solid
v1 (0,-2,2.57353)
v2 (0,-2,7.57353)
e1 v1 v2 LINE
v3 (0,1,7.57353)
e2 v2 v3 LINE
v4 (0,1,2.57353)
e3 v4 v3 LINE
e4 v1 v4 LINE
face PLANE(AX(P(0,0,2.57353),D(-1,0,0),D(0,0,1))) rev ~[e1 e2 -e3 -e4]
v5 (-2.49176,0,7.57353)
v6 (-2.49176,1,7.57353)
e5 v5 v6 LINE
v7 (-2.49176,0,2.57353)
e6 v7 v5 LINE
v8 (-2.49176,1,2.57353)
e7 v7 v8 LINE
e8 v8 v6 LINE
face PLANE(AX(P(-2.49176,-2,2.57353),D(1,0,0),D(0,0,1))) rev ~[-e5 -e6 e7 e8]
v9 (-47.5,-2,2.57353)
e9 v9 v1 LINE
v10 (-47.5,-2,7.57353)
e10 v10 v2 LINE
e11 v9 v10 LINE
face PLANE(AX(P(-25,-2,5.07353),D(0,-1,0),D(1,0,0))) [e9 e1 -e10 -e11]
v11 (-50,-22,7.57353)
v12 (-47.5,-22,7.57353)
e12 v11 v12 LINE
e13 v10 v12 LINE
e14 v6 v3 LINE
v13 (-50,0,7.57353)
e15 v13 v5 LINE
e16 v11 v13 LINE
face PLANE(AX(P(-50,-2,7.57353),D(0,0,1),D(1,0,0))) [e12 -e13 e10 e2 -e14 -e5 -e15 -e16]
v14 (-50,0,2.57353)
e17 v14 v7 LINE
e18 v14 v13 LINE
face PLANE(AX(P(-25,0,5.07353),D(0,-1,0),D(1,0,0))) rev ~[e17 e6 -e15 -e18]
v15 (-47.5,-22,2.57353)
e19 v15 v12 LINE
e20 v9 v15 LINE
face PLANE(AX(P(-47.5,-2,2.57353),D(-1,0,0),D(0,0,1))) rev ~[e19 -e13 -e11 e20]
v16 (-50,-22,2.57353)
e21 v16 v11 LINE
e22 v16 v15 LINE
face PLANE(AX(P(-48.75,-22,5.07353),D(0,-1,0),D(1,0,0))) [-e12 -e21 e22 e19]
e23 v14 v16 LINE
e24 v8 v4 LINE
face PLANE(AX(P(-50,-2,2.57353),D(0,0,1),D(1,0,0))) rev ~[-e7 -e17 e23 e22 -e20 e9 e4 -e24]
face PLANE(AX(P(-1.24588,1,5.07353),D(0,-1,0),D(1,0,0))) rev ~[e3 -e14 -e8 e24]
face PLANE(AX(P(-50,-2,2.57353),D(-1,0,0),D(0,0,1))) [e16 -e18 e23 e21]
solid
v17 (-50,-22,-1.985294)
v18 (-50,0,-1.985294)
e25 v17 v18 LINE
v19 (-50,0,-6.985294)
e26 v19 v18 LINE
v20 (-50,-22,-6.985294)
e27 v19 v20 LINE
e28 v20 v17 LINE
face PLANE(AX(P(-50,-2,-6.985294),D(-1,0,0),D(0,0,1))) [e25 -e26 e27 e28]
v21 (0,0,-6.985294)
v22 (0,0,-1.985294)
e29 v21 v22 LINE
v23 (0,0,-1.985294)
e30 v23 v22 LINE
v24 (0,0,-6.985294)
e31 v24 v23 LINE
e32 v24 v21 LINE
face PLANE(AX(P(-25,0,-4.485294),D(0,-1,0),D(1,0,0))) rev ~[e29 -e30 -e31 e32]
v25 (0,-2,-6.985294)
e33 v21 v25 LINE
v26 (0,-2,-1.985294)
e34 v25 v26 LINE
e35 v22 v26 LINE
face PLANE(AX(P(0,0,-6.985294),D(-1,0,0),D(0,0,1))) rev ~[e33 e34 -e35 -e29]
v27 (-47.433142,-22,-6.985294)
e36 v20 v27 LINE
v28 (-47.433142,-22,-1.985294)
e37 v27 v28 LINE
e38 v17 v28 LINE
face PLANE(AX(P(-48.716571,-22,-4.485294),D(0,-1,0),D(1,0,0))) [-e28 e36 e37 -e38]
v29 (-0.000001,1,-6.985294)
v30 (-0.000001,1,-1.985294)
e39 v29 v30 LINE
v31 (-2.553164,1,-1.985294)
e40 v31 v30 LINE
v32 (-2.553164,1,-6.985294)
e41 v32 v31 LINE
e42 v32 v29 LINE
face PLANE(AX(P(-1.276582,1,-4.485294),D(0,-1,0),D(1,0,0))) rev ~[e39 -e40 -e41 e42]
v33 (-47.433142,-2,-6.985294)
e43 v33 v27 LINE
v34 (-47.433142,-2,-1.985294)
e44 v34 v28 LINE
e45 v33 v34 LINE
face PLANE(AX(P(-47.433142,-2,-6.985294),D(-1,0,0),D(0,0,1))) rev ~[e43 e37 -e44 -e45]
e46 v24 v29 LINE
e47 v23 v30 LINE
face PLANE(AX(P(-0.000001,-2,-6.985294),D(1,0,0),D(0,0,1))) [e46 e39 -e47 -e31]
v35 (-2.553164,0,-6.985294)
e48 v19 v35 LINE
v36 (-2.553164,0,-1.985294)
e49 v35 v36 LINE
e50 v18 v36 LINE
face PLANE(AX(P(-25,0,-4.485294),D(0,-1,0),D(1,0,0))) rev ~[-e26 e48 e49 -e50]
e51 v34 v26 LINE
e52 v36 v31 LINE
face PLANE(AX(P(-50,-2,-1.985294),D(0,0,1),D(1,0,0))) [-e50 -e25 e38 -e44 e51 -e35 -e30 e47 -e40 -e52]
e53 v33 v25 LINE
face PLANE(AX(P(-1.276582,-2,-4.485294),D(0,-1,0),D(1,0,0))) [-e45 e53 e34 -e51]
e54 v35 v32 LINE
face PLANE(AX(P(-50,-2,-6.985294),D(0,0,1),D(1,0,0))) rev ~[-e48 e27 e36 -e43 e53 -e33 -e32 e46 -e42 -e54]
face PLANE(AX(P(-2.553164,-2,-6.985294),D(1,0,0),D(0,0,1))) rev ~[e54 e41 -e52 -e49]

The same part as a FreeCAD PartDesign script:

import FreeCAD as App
import Part
import Sketcher

V = App.Vector
Q = App.Units.Quantity

doc = App.newDocument("Part")
body = doc.addObject("PartDesign::Body", "Body")
body.AllowCompound = True

sketch1 = body.newObject("Sketcher::SketchObject", "Sketch")
sketch1.AttachmentSupport = (doc.getObject("XZ_Plane"), [""])
sketch1.MapMode = "FlatFace"
sketch1.addGeometry(Part.LineSegment(V(-50, 7.57353, 0), V(-50, 2.57353, 0)), False)
sketch1.addGeometry(Part.LineSegment(V(-50, 2.57353, 0), V(0, 2.57353, 0)), False)
sketch1.addGeometry(Part.LineSegment(V(0, 2.57353, 0), V(0, 7.57353, 0)), False)
sketch1.addGeometry(Part.LineSegment(V(0, 7.57353, 0), V(-50, 7.57353, 0)), False)
sketch1.addGeometry(Part.LineSegment(V(-50, -1.985294, 0), V(-50, -6.985294, 0)), False)
sketch1.addGeometry(Part.LineSegment(V(-50, -6.985294, 0), V(0, -6.985294, 0)), False)
sketch1.addGeometry(Part.LineSegment(V(0, -6.985294, 0), V(0, -1.985294, 0)), False)
sketch1.addGeometry(Part.LineSegment(V(0, -1.985294, 0), V(-50, -1.985294, 0)), False)
sketch1.addConstraint(Sketcher.Constraint("Coincident", 0, 2, 1, 1))
sketch1.addConstraint(Sketcher.Constraint("Coincident", 1, 2, 2, 1))
sketch1.addConstraint(Sketcher.Constraint("Coincident", 2, 2, 3, 1))
sketch1.addConstraint(Sketcher.Constraint("Coincident", 3, 2, 0, 1))
sketch1.addConstraint(Sketcher.Constraint("Coincident", 4, 2, 5, 1))
sketch1.addConstraint(Sketcher.Constraint("Coincident", 5, 2, 6, 1))
sketch1.addConstraint(Sketcher.Constraint("Coincident", 6, 2, 7, 1))
sketch1.addConstraint(Sketcher.Constraint("Coincident", 7, 2, 4, 1))
sketch1.addConstraint(Sketcher.Constraint("Vertical", 0))
sketch1.addConstraint(Sketcher.Constraint("Horizontal", 1))
sketch1.addConstraint(Sketcher.Constraint("Vertical", 2))
sketch1.addConstraint(Sketcher.Constraint("Horizontal", 3))
sketch1.addConstraint(Sketcher.Constraint("Vertical", 4))
sketch1.addConstraint(Sketcher.Constraint("Horizontal", 5))
sketch1.addConstraint(Sketcher.Constraint("Vertical", 6))
sketch1.addConstraint(Sketcher.Constraint("Horizontal", 7))
sketch1.addConstraint(Sketcher.Constraint("PointOnObject", 1, 2, -2))
sketch1.addConstraint(Sketcher.Constraint("PointOnObject", 5, 2, -2))
sketch1.addConstraint(Sketcher.Constraint("Vertical", 3, 2, 4, 2))
sketch1.addConstraint(Sketcher.Constraint("Equal", 2, 4))
sketch1.addConstraint(Sketcher.Constraint("DistanceX", 1, 1, 1, 2, Q("50 mm")))
sketch1.addConstraint(Sketcher.Constraint("DistanceY", 0, 2, 0, 1, Q("5 mm")))
sketch1.addConstraint(Sketcher.Constraint("DistanceY", -1, 1, 0, 2, Q("2.57353 mm")))
sketch1.addConstraint(Sketcher.Constraint("DistanceY", 4, 2, -1, 1, Q("6.985294 mm")))
pad1 = body.newObject("PartDesign::Pad", "Pad")
pad1.Profile = sketch1
pad1.Length = 2

sketch2 = body.newObject("Sketcher::SketchObject", "Sketch001")
sketch2.AttachmentSupport = (doc.getObject("XZ_Plane"), [""])
sketch2.MapMode = "FlatFace"
sketch2.AttachmentOffset = App.Placement(V(0, 0, 2), App.Rotation())
sketch2.addGeometry(Part.LineSegment(V(-50, 7.57353, 0), V(-50, 2.57353, 0)), False)
sketch2.addGeometry(Part.LineSegment(V(-50, 2.57353, 0), V(-47.5, 2.57353, 0)), False)
sketch2.addGeometry(Part.LineSegment(V(-47.5, 2.57353, 0), V(-47.5, 7.57353, 0)), False)
sketch2.addGeometry(Part.LineSegment(V(-47.5, 7.57353, 0), V(-50, 7.57353, 0)), False)
sketch2.addConstraint(Sketcher.Constraint("Coincident", 0, 2, 1, 1))
sketch2.addConstraint(Sketcher.Constraint("Coincident", 1, 2, 2, 1))
sketch2.addConstraint(Sketcher.Constraint("Coincident", 2, 2, 3, 1))
sketch2.addConstraint(Sketcher.Constraint("Coincident", 3, 2, 0, 1))
sketch2.addConstraint(Sketcher.Constraint("Vertical", 0))
sketch2.addConstraint(Sketcher.Constraint("Horizontal", 1))
sketch2.addConstraint(Sketcher.Constraint("Vertical", 2))
sketch2.addConstraint(Sketcher.Constraint("Horizontal", 3))
sketch2.addConstraint(Sketcher.Constraint("DistanceY", 0, 2, 0, 1, Q("5 mm")))
sketch2.addConstraint(Sketcher.Constraint("DistanceX", 1, 1, 1, 2, Q("2.5 mm")))
sketch2.addConstraint(Sketcher.Constraint("DistanceX", 0, 2, -1, 1, Q("50 mm")))
sketch2.addConstraint(Sketcher.Constraint("DistanceY", -1, 1, 0, 2, Q("2.57353 mm")))
pad2 = body.newObject("PartDesign::Pad", "Pad001")
pad2.Profile = sketch2
pad2.Length = 20

sketch3 = body.newObject("Sketcher::SketchObject", "Sketch002")
sketch3.AttachmentSupport = (doc.getObject("XZ_Plane"), [""])
sketch3.MapMode = "FlatFace"
sketch3.AttachmentOffset = App.Placement(V(0, 0, 2), App.Rotation())
sketch3.addGeometry(Part.LineSegment(V(-50, -1.985294, 0), V(-50, -6.985294, 0)), False)
sketch3.addGeometry(Part.LineSegment(V(-50, -6.985294, 0), V(-47.433142, -6.985294, 0)), False)
sketch3.addGeometry(Part.LineSegment(V(-47.433142, -6.985294, 0), V(-47.433142, -1.985294, 0)), False)
sketch3.addGeometry(Part.LineSegment(V(-47.433142, -1.985294, 0), V(-50, -1.985294, 0)), False)
sketch3.addConstraint(Sketcher.Constraint("Coincident", 0, 2, 1, 1))
sketch3.addConstraint(Sketcher.Constraint("Coincident", 1, 2, 2, 1))
sketch3.addConstraint(Sketcher.Constraint("Coincident", 2, 2, 3, 1))
sketch3.addConstraint(Sketcher.Constraint("Coincident", 3, 2, 0, 1))
sketch3.addConstraint(Sketcher.Constraint("Vertical", 0))
sketch3.addConstraint(Sketcher.Constraint("Horizontal", 1))
sketch3.addConstraint(Sketcher.Constraint("Vertical", 2))
sketch3.addConstraint(Sketcher.Constraint("Horizontal", 3))
sketch3.addConstraint(Sketcher.Constraint("DistanceY", 0, 2, 0, 1, Q("5 mm")))
sketch3.addConstraint(Sketcher.Constraint("DistanceX", 0, 2, -1, 1, Q("50 mm")))
sketch3.addConstraint(Sketcher.Constraint("DistanceX", 1, 1, 1, 2, Q("2.566858 mm")))
sketch3.addConstraint(Sketcher.Constraint("DistanceY", 0, 2, -1, 1, Q("6.985294 mm")))
pad3 = body.newObject("PartDesign::Pad", "Pad002")
pad3.Profile = sketch3
pad3.Length = 20

sketch4 = body.newObject("Sketcher::SketchObject", "Sketch003")
sketch4.AttachmentSupport = (doc.getObject("XZ_Plane"), [""])
sketch4.MapMode = "FlatFace"
sketch4.AttachmentOffset = App.Placement(V(0, 0, 2), App.Rotation())
sketch4.addGeometry(Part.LineSegment(V(-2.49176, 7.57353, 0), V(-2.49176, 2.57353, 0)), False)
sketch4.addGeometry(Part.LineSegment(V(-2.49176, 2.57353, 0), V(0, 2.57353, 0)), False)
sketch4.addGeometry(Part.LineSegment(V(0, 2.57353, 0), V(0, 7.57353, 0)), False)
sketch4.addGeometry(Part.LineSegment(V(0, 7.57353, 0), V(-2.49176, 7.57353, 0)), False)
sketch4.addConstraint(Sketcher.Constraint("Coincident", 0, 2, 1, 1))
sketch4.addConstraint(Sketcher.Constraint("Coincident", 1, 2, 2, 1))
sketch4.addConstraint(Sketcher.Constraint("Coincident", 2, 2, 3, 1))
sketch4.addConstraint(Sketcher.Constraint("Coincident", 3, 2, 0, 1))
sketch4.addConstraint(Sketcher.Constraint("Vertical", 0))
sketch4.addConstraint(Sketcher.Constraint("Horizontal", 1))
sketch4.addConstraint(Sketcher.Constraint("Vertical", 2))
sketch4.addConstraint(Sketcher.Constraint("Horizontal", 3))
sketch4.addConstraint(Sketcher.Constraint("PointOnObject", 1, 2, -2))
sketch4.addConstraint(Sketcher.Constraint("DistanceY", 0, 2, 0, 1, Q("5 mm")))
sketch4.addConstraint(Sketcher.Constraint("DistanceX", 1, 1, 1, 2, Q("2.49176 mm")))
sketch4.addConstraint(Sketcher.Constraint("DistanceY", -1, 1, 0, 2, Q("2.57353 mm")))
pad4 = body.newObject("PartDesign::Pad", "Pad003")
pad4.Profile = sketch4
pad4.Length = 3
pad4.Reversed = True

sketch5 = body.newObject("Sketcher::SketchObject", "Sketch004")
sketch5.AttachmentSupport = (doc.getObject("XZ_Plane"), [""])
sketch5.MapMode = "FlatFace"
sketch5.AttachmentOffset = App.Placement(V(0, 0, 2), App.Rotation())
sketch5.addGeometry(Part.LineSegment(V(-2.553164, -1.985294, 0), V(-2.553164, -6.985294, 0)), False)
sketch5.addGeometry(Part.LineSegment(V(-2.553164, -6.985294, 0), V(0, -6.985294, 0)), False)
sketch5.addGeometry(Part.LineSegment(V(0, -6.985294, 0), V(0, -1.985294, 0)), False)
sketch5.addGeometry(Part.LineSegment(V(0, -1.985294, 0), V(-2.553164, -1.985294, 0)), False)
sketch5.addConstraint(Sketcher.Constraint("Coincident", 0, 2, 1, 1))
sketch5.addConstraint(Sketcher.Constraint("Coincident", 1, 2, 2, 1))
sketch5.addConstraint(Sketcher.Constraint("Coincident", 2, 2, 3, 1))
sketch5.addConstraint(Sketcher.Constraint("Coincident", 3, 2, 0, 1))
sketch5.addConstraint(Sketcher.Constraint("Vertical", 0))
sketch5.addConstraint(Sketcher.Constraint("Horizontal", 1))
sketch5.addConstraint(Sketcher.Constraint("Vertical", 2))
sketch5.addConstraint(Sketcher.Constraint("Horizontal", 3))
sketch5.addConstraint(Sketcher.Constraint("PointOnObject", 1, 2, -2))
sketch5.addConstraint(Sketcher.Constraint("DistanceY", 0, 2, 0, 1, Q("5 mm")))
sketch5.addConstraint(Sketcher.Constraint("DistanceX", 1, 1, 1, 2, Q("2.553163 mm")))
sketch5.addConstraint(Sketcher.Constraint("DistanceY", 0, 2, -1, 1, Q("6.985294 mm")))
pad5 = body.newObject("PartDesign::Pad", "Pad004")
pad5.Profile = sketch5
pad5.Length = 3
pad5.Reversed = True

doc.recompute()
